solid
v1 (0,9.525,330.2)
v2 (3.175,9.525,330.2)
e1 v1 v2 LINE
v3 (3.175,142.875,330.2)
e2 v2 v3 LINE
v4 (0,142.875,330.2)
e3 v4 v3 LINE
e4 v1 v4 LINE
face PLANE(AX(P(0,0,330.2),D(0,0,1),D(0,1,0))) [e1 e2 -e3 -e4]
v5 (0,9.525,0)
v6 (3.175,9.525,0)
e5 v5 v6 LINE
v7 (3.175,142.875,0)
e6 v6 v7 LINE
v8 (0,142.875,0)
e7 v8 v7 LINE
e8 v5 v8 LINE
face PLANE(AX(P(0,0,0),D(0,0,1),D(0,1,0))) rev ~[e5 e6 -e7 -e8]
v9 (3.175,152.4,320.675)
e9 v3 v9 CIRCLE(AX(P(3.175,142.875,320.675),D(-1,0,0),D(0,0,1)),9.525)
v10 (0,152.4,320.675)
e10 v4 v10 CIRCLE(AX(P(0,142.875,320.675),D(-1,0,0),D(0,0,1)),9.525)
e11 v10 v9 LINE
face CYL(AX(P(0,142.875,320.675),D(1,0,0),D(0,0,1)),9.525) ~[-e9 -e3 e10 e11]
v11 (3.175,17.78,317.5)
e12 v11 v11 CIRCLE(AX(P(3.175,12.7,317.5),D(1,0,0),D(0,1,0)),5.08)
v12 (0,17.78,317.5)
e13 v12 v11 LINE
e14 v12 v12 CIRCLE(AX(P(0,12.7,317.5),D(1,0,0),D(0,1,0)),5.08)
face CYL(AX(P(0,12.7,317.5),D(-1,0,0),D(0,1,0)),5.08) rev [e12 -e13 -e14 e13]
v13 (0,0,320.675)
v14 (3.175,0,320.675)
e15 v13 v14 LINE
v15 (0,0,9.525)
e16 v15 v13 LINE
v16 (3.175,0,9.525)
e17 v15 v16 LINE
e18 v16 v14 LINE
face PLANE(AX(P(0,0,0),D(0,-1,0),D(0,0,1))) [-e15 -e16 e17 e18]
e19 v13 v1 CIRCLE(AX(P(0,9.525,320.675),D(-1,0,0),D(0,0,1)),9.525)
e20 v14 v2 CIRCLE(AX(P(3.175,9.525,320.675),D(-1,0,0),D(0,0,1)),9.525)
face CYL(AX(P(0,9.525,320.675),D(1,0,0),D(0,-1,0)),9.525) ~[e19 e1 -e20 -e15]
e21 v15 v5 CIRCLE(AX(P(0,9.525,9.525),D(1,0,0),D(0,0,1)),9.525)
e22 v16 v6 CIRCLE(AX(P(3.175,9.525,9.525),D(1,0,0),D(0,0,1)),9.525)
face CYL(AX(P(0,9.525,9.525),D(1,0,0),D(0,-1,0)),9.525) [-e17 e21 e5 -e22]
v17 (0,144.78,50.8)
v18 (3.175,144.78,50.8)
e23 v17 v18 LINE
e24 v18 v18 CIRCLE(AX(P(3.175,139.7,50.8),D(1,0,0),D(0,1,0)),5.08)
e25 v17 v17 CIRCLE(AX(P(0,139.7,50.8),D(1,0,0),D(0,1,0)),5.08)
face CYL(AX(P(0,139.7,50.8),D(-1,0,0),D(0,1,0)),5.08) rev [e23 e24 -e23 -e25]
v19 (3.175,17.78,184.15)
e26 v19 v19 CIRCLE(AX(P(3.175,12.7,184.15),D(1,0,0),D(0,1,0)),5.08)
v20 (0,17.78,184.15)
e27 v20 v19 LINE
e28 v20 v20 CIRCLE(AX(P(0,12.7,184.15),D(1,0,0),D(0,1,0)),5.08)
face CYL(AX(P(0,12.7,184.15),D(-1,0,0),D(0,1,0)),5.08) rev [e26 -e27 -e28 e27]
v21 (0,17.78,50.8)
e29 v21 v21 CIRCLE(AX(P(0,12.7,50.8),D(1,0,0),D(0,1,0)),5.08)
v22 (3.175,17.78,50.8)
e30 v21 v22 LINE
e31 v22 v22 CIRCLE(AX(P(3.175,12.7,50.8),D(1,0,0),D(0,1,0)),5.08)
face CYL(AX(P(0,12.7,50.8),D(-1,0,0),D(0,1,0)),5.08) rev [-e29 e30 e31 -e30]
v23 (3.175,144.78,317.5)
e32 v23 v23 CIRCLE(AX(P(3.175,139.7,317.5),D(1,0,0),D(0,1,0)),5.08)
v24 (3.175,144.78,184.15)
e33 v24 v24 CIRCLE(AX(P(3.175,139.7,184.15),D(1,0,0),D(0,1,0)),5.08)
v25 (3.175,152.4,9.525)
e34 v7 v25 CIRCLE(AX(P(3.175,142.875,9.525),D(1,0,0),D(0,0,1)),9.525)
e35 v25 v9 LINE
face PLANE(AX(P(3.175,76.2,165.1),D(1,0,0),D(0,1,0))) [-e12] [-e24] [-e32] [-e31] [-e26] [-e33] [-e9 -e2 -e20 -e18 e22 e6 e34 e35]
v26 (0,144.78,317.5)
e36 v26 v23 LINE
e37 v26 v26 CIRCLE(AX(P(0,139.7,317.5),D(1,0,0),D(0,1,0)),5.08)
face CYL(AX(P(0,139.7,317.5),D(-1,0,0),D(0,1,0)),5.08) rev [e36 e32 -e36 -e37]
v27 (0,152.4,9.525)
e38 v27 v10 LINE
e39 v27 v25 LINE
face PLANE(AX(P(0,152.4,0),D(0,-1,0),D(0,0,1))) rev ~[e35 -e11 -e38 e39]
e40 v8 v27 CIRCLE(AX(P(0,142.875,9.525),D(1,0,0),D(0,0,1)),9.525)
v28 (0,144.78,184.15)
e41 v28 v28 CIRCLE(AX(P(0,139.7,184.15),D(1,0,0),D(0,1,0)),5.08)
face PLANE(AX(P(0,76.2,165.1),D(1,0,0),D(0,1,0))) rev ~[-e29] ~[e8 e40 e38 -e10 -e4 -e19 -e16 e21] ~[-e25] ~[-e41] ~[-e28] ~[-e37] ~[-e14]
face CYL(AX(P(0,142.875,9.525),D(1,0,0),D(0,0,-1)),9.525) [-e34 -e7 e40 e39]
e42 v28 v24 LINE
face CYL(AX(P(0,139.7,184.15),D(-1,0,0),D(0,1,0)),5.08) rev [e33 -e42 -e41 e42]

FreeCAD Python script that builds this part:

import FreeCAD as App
import Part
import Sketcher

V = App.Vector
Q = App.Units.Quantity


def edges_at(feature, points):
    """Names of the edges that pass closest to the given points."""
    edges = feature.Shape.Edges
    near = lambda p: min(range(len(edges)), key=lambda i: edges[i].distToShape(Part.Vertex(*p))[0])
    return sorted({f"Edge{near(p) + 1}" for p in points})

doc = App.newDocument("Part")
body = doc.addObject("PartDesign::Body", "Body")

# Sketch on YZ plane
sketch1 = body.newObject("Sketcher::SketchObject", "Sketch")
sketch1.AttachmentSupport = (doc.getObject("YZ_Plane"), [""])
sketch1.MapMode = "FlatFace"
sketch1.addGeometry([
    Part.LineSegment(V(0, 330.2, 0), V(0, 0, 0)),  # 0
    Part.LineSegment(V(0, 0, 0), V(152.4, 0, 0)),  # 1
    Part.LineSegment(V(152.4, 0, 0), V(152.4, 330.2, 0)),  # 2
    Part.LineSegment(V(152.4, 330.2, 0), V(0, 330.2, 0)),  # 3
    Part.Circle(V(12.7, 50.8, 0), V(0, 0, 1), 5.08),  # 4
    Part.Circle(V(139.7, 50.8, 0), V(0, 0, 1), 5.08),  # 5
    Part.Circle(V(12.7, 184.15, 0), V(0, 0, 1), 5.08),  # 6
    Part.Circle(V(12.7, 317.5, 0), V(0, 0, 1), 5.08),  # 7
    Part.Circle(V(139.7, 184.15, 0), V(0, 0, 1), 5.08),  # 8
    Part.Circle(V(139.7, 317.5, 0), V(0, 0, 1), 5.08),  # 9
], False)
sketch1.addConstraint([
    Sketcher.Constraint("Coincident", 0, 2, 1, 1),
    Sketcher.Constraint("Coincident", 1, 2, 2, 1),
    Sketcher.Constraint("Coincident", 2, 2, 3, 1),
    Sketcher.Constraint("Coincident", 3, 2, 0, 1),
    Sketcher.Constraint("Vertical", 0),
    Sketcher.Constraint("Horizontal", 1),
    Sketcher.Constraint("Vertical", 2),
    Sketcher.Constraint("Horizontal", 3),
    Sketcher.Constraint("Coincident", 0, 2, -1, 1),
    Sketcher.Constraint("Equal", 4, 5),
    Sketcher.Constraint("Equal", 5, 6),
    Sketcher.Constraint("Equal", 6, 7),
    Sketcher.Constraint("Equal", 7, 8),
    Sketcher.Constraint("Equal", 8, 9),
    Sketcher.Constraint("Horizontal", 4, 3, 5, 3),
    Sketcher.Constraint("Horizontal", 6, 3, 8, 3),
    Sketcher.Constraint("Horizontal", 7, 3, 9, 3),
    Sketcher.Constraint("Vertical", 4, 3, 6, 3),
    Sketcher.Constraint("Vertical", 6, 3, 7, 3),
    Sketcher.Constraint("Vertical", 5, 3, 8, 3),
    Sketcher.Constraint("Vertical", 8, 3, 9, 3),
    Sketcher.Constraint("Diameter", 4, Q("0.4 in")),
    Sketcher.Constraint("DistanceX", 1, 1, 1, 2, Q("6 in")),
    Sketcher.Constraint("DistanceY", 0, 2, 0, 1, Q("13 in")),
    Sketcher.Constraint("DistanceY", -1, 1, 4, 3, Q("2 in")),
    Sketcher.Constraint("DistanceX", 4, 3, 5, 3, Q("5 in")),
    Sketcher.Constraint("DistanceX", -1, 1, 4, 3, Q("0.5 in")),
    Sketcher.Constraint("DistanceY", -1, 1, 7, 3, Q("12.5 in")),
    Sketcher.Constraint("DistanceY", -1, 1, 6, 3, Q("7.25 in")),
])
pad1 = body.newObject("PartDesign::Pad", "Pad")
pad1.Profile = sketch1
pad1.Length = Q("0.125 in")
doc.recompute()

fillet = body.newObject("PartDesign::Fillet", "Fillet")
fillet.Base = (pad1, edges_at(pad1, [
    (1.587, 152.4, 330.2),
    (1.587, 0, 330.2),
    (1.587, 0, 0),
    (1.587, 152.4, 0),
]))
fillet.Radius = Q("0.375 in")

doc.recompute()
